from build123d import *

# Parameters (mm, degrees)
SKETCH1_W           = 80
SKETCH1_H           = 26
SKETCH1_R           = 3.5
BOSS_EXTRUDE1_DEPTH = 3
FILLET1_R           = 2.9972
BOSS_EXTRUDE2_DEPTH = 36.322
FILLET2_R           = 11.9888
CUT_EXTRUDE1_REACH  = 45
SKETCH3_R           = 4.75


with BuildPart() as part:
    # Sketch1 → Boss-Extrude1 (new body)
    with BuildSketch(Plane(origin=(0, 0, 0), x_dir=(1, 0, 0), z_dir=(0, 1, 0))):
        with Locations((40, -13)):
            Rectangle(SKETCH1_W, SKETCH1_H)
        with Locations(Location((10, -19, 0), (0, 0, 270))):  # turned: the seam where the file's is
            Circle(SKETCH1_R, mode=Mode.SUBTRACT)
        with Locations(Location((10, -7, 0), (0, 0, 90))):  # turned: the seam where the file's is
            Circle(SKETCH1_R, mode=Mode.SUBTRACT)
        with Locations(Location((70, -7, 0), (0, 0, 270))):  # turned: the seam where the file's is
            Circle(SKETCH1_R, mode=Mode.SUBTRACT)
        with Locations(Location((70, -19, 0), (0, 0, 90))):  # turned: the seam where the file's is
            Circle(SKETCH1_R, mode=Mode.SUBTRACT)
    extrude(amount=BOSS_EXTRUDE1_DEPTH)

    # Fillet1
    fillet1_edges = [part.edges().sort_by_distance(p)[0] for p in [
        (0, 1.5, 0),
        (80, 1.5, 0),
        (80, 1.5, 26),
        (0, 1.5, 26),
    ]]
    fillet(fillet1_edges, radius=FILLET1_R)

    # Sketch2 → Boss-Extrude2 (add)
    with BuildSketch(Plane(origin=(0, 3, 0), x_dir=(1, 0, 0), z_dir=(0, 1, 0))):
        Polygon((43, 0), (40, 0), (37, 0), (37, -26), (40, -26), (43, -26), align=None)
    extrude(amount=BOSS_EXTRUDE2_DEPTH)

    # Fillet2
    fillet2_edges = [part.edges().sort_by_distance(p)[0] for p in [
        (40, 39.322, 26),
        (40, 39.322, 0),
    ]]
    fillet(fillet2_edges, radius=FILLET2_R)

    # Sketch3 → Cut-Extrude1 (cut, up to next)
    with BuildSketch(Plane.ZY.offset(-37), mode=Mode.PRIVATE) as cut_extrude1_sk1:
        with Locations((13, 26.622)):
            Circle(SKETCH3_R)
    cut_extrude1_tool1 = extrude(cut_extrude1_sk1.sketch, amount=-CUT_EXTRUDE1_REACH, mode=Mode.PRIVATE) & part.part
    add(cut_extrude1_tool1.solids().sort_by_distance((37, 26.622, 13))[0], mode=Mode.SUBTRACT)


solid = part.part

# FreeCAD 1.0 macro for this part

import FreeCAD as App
import Part
import Sketcher
Q = App.Units.Quantity


def edges_at(feature, points):
    """Names of the edges that pass closest to the given points."""
    edges = feature.Shape.Edges
    near = lambda p: min(range(len(edges)), key=lambda i: edges[i].distToShape(Part.Vertex(*p))[0])
    return sorted({f"Edge{near(p) + 1}" for p in points})


def add_polygon(sketch, points):
    """Adds a closed chain of lines whose ends are joined by coincident constraints."""
    first, n = sketch.GeometryCount, len(points)
    for a, b in zip(points, points[1:] + points[:1]):
        sketch.addGeometry(Part.LineSegment(App.Vector(*a, 0), App.Vector(*b, 0)), False)
    for i in range(n):
        sketch.addConstraint(Sketcher.Constraint("Coincident", first + i, 2, first + (i + 1) % n, 1))

doc = App.newDocument("Part")
params = doc.addObject("Spreadsheet::Sheet", "Params")
for row, (alias, value) in enumerate([
    ("sketch1_diameter", "7 mm"),
    ("sketch1_width", "80 mm"),
    ("sketch1_height", "26 mm"),
    ("pad1_length", "3 mm"),
    ("fillet_radius", "2.9972 mm"),
    ("sketch2_width", "6 mm"),
    ("sketch2_height", "26 mm"),
    ("pad2_length", "36.322 mm"),
    ("fillet2_radius", "11.9888 mm"),
    ("sketch3_diameter", "9.5 mm"),
], start=1):
    params.set(f"A{row}", alias)
    params.set(f"B{row}", "=" + value)
    params.setAlias(f"B{row}", alias)

body = doc.addObject("PartDesign::Body", "Body")

# Sketch on XZ plane
sketch1 = body.newObject("Sketcher::SketchObject", "Sketch")
sketch1.AttachmentSupport = (doc.getObject("XZ_Plane"), [""])
sketch1.MapMode = "FlatFace"
add_polygon(sketch1, [(0, 0), (0, 26), (80, 26), (80, 0)])  # lines 0-3
sketch1.addGeometry(Part.Circle(App.Vector(10, 19, 0), App.Vector(0, 0, 1), 3.5), False)  # 4
sketch1.addGeometry(Part.Circle(App.Vector(70, 19, 0), App.Vector(0, 0, 1), 3.5), False)  # 5
sketch1.addGeometry(Part.Circle(App.Vector(10, 7, 0), App.Vector(0, 0, 1), 3.5), False)  # 6
sketch1.addGeometry(Part.Circle(App.Vector(70, 7, 0), App.Vector(0, 0, 1), 3.5), False)  # 7
sketch1.addConstraint(Sketcher.Constraint("Vertical", 0))
sketch1.addConstraint(Sketcher.Constraint("Horizontal", 1))
sketch1.addConstraint(Sketcher.Constraint("Vertical", 2))
sketch1.addConstraint(Sketcher.Constraint("Horizontal", 3))
sketch1.addConstraint(Sketcher.Constraint("Coincident", 3, 2, -1, 1))
sketch1.addConstraint(Sketcher.Constraint("Equal", 4, 5))
sketch1.addConstraint(Sketcher.Constraint("Equal", 5, 6))
sketch1.addConstraint(Sketcher.Constraint("Equal", 6, 7))
sketch1.addConstraint(Sketcher.Constraint("Horizontal", 4, 3, 5, 3))
sketch1.addConstraint(Sketcher.Constraint("Horizontal", 6, 3, 7, 3))
sketch1.addConstraint(Sketcher.Constraint("Vertical", 4, 3, 6, 3))
sketch1.addConstraint(Sketcher.Constraint("Vertical", 5, 3, 7, 3))
sketch1.addConstraint(Sketcher.Constraint("Diameter", 4, Q("7 mm")))
sketch1.addConstraint(Sketcher.Constraint("DistanceX", 1, 1, 1, 2, Q("80 mm")))
sketch1.addConstraint(Sketcher.Constraint("DistanceY", 0, 1, 0, 2, Q("26 mm")))
sketch1.addConstraint(Sketcher.Constraint("DistanceX", -1, 1, 4, 3, Q("10 mm")))
sketch1.addConstraint(Sketcher.Constraint("DistanceY", -1, 1, 4, 3, Q("19 mm")))
sketch1.addConstraint(Sketcher.Constraint("DistanceX", -1, 1, 5, 3, Q("70 mm")))
sketch1.addConstraint(Sketcher.Constraint("DistanceY", -1, 1, 6, 3, Q("7 mm")))
sketch1.setExpression("Constraints[16]", "Params.sketch1_diameter")
sketch1.setExpression("Constraints[17]", "Params.sketch1_width")
sketch1.setExpression("Constraints[18]", "Params.sketch1_height")
pad1 = body.newObject("PartDesign::Pad", "Pad")
pad1.Profile = sketch1
pad1.setExpression("Length", "Params.pad1_length")
pad1.Reversed = True
doc.recompute()

fillet = body.newObject("PartDesign::Fillet", "Fillet")
fillet.Base = (pad1, edges_at(pad1, [
    (0, 1.5, 0),
    (80, 1.5, 0),
    (80, 1.5, 26),
    (0, 1.5, 26),
]))
fillet.setExpression("Radius", "Params.fillet_radius")

# Sketch on XZ plane
sketch2 = body.newObject("Sketcher::SketchObject", "Sketch001")
sketch2.AttachmentSupport = (doc.getObject("XZ_Plane"), [""])
sketch2.MapMode = "FlatFace"
sketch2.AttachmentOffset = App.Placement(App.Vector(0, 0, -3), App.Rotation())
add_polygon(sketch2, [(43, 0), (37, 0), (37, 26), (43, 26)])  # lines 0-3
sketch2.addConstraint(Sketcher.Constraint("Horizontal", 0))
sketch2.addConstraint(Sketcher.Constraint("Vertical", 1))
sketch2.addConstraint(Sketcher.Constraint("Horizontal", 2))
sketch2.addConstraint(Sketcher.Constraint("Vertical", 3))
sketch2.addConstraint(Sketcher.Constraint("PointOnObject", 0, 2, -1))
sketch2.addConstraint(Sketcher.Constraint("DistanceX", 0, 2, 0, 1, Q("6 mm")))
sketch2.addConstraint(Sketcher.Constraint("DistanceY", 1, 1, 1, 2, Q("26 mm")))
sketch2.addConstraint(Sketcher.Constraint("DistanceX", -1, 1, 0, 2, Q("37 mm")))
sketch2.setExpression("Constraints[9]", "Params.sketch2_width")
sketch2.setExpression("Constraints[10]", "Params.sketch2_height")
pad2 = body.newObject("PartDesign::Pad", "Pad001")
pad2.Profile = sketch2
pad2.setExpression("Length", "Params.pad2_length")
pad2.Reversed = True
doc.recompute()

fillet2 = body.newObject("PartDesign::Fillet", "Fillet001")
fillet2.Base = (pad2, edges_at(pad2, [(40, 39.322, 26), (40, 39.322, 0)]))
fillet2.setExpression("Radius", "Params.fillet2_radius")

# Sketch on YZ plane
sketch3 = body.newObject("Sketcher::SketchObject", "Sketch002")
sketch3.AttachmentSupport = (doc.getObject("YZ_Plane"), [""])
sketch3.MapMode = "FlatFace"
sketch3.AttachmentOffset = App.Placement(App.Vector(0, 0, 37), App.Rotation())
sketch3.addGeometry(Part.Circle(App.Vector(26.6, 13, 0), App.Vector(0, 0, 1), 4.8), False)
sketch3.addConstraint(Sketcher.Constraint("Diameter", 0, Q("9.5 mm")))
sketch3.addConstraint(Sketcher.Constraint("DistanceY", -1, 1, 0, 3, Q("13 mm")))
sketch3.addConstraint(Sketcher.Constraint("DistanceX", -1, 1, 0, 3, Q("26.622 mm")))
sketch3.setExpression("Constraints[0]", "Params.sketch3_diameter")
pocket1 = body.newObject("PartDesign::Pocket", "Pocket")
pocket1.Profile = sketch3
pocket1.Type = "UpToFirst"
pocket1.Reversed = True

doc.recompute()
